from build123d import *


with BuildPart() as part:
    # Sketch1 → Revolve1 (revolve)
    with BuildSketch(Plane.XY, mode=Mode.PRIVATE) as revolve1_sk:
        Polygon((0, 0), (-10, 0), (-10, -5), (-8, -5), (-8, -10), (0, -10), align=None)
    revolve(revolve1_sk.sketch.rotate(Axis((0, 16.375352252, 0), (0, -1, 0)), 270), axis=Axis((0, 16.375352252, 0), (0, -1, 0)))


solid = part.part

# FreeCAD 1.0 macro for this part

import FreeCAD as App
import Part
import Sketcher
from FreeCAD import Vector


def add_polygon(sketch, points):
    """Adds a closed chain of lines whose ends are joined by coincident constraints."""
    first, n = sketch.GeometryCount, len(points)
    for a, b in zip(points, points[1:] + points[:1]):
        sketch.addGeometry(Part.LineSegment(App.Vector(*a, 0), App.Vector(*b, 0)), False)
    for i in range(n):
        sketch.addConstraint(Sketcher.Constraint("Coincident", first + i, 2, first + (i + 1) % n, 1))

doc = App.newDocument("Part")
params = doc.addObject("Spreadsheet::Sheet", "Params")
for row, (alias, value) in enumerate([
    ("sketch1_width", "10 mm"),
    ("sketch1_width2", "2 mm"),
    ("revolution_angle", "360 deg"),
], start=1):
    params.set(f"A{row}", alias)
    params.set(f"B{row}", "=" + value)
    params.setAlias(f"B{row}", alias)

body = doc.addObject("PartDesign::Body", "Body")

sketch1 = doc.addObject("Sketcher::SketchObject", "Sketch")
body.addObject(sketch1)
sketch1.AttachmentSupport = (doc.XY_Plane, [""])
sketch1.MapMode = "FlatFace"
add_polygon(sketch1, [(0, 0), (-10, 0), (-10, -5), (-8, -5), (-8, -10), (0, -10)])
sketch1.addConstraint([
    Sketcher.Constraint("Horizontal", 0),
    Sketcher.Constraint("Vertical", 1),
    Sketcher.Constraint("Horizontal", 2),
    Sketcher.Constraint("Vertical", 3),
    Sketcher.Constraint("Horizontal", 4),
    Sketcher.Constraint("Vertical", 5),
    Sketcher.Constraint("Coincident", 5, 2, -1, 1),
    Sketcher.Constraint("Equal", 1, 3),
    Sketcher.Constraint("Equal", 0, 5),
    Sketcher.Constraint("DistanceX", 0, 2, 0, 1, 10.0),
    Sketcher.Constraint("DistanceX", 2, 1, 2, 2, 2.0),
])
sketch1.setExpression("Constraints[15]", "Params.sketch1_width")
sketch1.setExpression("Constraints[16]", "Params.sketch1_width2")
revolution = doc.addObject("PartDesign::Revolution", "Revolution")
body.addObject(revolution)
revolution.Profile = sketch1
revolution.ReferenceAxis = (sketch1, ["V_Axis"])
revolution.setExpression("Angle", "Params.revolution_angle")

doc.recompute()
